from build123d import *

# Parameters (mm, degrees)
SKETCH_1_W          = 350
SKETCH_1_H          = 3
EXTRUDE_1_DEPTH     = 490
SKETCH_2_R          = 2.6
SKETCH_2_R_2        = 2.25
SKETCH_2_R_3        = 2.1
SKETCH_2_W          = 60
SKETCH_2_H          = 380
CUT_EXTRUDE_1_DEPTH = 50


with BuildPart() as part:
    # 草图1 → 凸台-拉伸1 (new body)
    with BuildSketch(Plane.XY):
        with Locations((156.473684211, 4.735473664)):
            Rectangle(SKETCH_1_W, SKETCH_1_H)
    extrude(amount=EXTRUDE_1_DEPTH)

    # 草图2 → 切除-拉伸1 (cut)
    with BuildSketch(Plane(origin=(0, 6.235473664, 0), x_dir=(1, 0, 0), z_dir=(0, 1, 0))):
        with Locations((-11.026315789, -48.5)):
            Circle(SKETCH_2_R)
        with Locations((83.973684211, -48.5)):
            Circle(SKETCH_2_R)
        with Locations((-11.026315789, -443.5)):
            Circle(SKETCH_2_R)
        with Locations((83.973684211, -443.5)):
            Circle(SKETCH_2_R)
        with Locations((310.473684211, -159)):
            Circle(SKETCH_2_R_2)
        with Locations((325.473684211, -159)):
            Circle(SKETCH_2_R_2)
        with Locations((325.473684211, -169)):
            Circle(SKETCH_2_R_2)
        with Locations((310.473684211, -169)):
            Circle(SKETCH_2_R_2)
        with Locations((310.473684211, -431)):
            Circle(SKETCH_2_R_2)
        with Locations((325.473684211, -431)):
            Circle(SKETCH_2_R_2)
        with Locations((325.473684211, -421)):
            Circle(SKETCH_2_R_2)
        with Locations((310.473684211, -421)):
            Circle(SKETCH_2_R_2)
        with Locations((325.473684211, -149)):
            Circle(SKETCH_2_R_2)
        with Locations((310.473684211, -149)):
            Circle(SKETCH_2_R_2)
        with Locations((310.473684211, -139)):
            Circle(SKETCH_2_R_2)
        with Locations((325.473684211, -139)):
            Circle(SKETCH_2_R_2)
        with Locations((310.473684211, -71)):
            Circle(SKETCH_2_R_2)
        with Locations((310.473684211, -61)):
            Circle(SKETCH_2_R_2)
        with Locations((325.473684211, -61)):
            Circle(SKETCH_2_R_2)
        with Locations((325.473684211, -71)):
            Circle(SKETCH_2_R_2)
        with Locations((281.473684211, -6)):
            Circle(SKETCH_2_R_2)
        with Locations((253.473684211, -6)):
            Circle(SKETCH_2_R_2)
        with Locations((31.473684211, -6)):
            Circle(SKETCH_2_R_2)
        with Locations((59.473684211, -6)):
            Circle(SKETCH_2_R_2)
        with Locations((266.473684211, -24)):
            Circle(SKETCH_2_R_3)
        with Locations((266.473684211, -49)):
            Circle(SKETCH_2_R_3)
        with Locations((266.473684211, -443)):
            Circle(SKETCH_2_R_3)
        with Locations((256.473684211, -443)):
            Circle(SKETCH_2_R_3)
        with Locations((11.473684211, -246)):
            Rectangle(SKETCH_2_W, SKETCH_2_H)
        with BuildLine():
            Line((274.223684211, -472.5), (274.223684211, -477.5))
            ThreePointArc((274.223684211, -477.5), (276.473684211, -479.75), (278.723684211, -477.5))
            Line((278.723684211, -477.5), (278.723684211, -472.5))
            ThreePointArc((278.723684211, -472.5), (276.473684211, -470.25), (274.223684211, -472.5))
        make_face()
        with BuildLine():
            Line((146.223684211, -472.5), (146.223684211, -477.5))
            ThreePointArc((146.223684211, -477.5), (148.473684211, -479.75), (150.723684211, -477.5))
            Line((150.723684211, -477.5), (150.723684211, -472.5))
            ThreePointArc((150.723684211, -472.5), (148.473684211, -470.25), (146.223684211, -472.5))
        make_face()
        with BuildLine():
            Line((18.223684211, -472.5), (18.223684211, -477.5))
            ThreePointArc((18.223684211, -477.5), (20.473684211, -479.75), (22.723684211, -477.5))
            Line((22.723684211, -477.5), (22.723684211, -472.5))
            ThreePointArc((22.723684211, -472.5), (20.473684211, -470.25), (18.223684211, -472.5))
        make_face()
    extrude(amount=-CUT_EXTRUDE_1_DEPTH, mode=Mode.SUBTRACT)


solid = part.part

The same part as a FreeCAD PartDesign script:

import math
import FreeCAD as App
import Part
import Sketcher

V = App.Vector
Q = App.Units.Quantity


def add_polygon(sketch, points):
    """Adds a closed chain of lines whose ends are joined by coincident constraints."""
    first, n = sketch.GeometryCount, len(points)
    for a, b in zip(points, points[1:] + points[:1]):
        sketch.addGeometry(Part.LineSegment(App.Vector(*a, 0), App.Vector(*b, 0)), False)
    for i in range(n):
        sketch.addConstraint(Sketcher.Constraint("Coincident", first + i, 2, first + (i + 1) % n, 1))

doc = App.newDocument("Part")
body = doc.addObject("PartDesign::Body", "Body")

# Sketch on XY plane
sketch1 = body.newObject("Sketcher::SketchObject", "Sketch")
sketch1.AttachmentSupport = (doc.getObject("XY_Plane"), [""])
sketch1.MapMode = "FlatFace"
add_polygon(sketch1, [(-18.5, 6.2), (-18.5, 3.2), (331.5, 3.2), (331.5, 6.2)])  # lines 0-3
sketch1.addConstraint([
    Sketcher.Constraint("Vertical", 0),
    Sketcher.Constraint("Horizontal", 1),
    Sketcher.Constraint("Vertical", 2),
    Sketcher.Constraint("Horizontal", 3),
    Sketcher.Constraint("DistanceX", 1, 1, 1, 2, Q("350 mm")),
    Sketcher.Constraint("DistanceY", 0, 2, 0, 1, Q("3 mm")),
    Sketcher.Constraint("DistanceX", 0, 2, -1, 1, Q("18.526316 mm")),
    Sketcher.Constraint("DistanceY", -1, 1, 0, 2, Q("3.235474 mm")),
])
pad1 = body.newObject("PartDesign::Pad", "Pad")
pad1.Profile = sketch1
pad1.Length = 490

# Sketch on XZ plane
sketch2 = body.newObject("Sketcher::SketchObject", "Sketch001")
sketch2.AttachmentSupport = (doc.getObject("XZ_Plane"), [""])
sketch2.MapMode = "FlatFace"
sketch2.AttachmentOffset = App.Placement(V(0, 0, -6.235474), App.Rotation())
sketch2.addGeometry(Part.Circle(V(-11, 48.5, 0), V(0, 0, 1), 2.6), False)  # 0
sketch2.addGeometry(Part.Circle(V(84, 48.5, 0), V(0, 0, 1), 2.6), False)  # 1
sketch2.addGeometry(Part.Circle(V(-11, 443.5, 0), V(0, 0, 1), 2.6), False)  # 2
sketch2.addGeometry(Part.Circle(V(84, 443.5, 0), V(0, 0, 1), 2.6), False)  # 3
sketch2.addGeometry(Part.Circle(V(310.5, 159, 0), V(0, 0, 1), 2.2), False)  # 4
sketch2.addGeometry(Part.Circle(V(325.5, 159, 0), V(0, 0, 1), 2.2), False)  # 5
sketch2.addGeometry(Part.Circle(V(325.5, 169, 0), V(0, 0, 1), 2.2), False)  # 6
sketch2.addGeometry(Part.Circle(V(310.5, 169, 0), V(0, 0, 1), 2.2), False)  # 7
sketch2.addGeometry(Part.Circle(V(310.5, 431, 0), V(0, 0, 1), 2.2), False)  # 8
sketch2.addGeometry(Part.Circle(V(325.5, 431, 0), V(0, 0, 1), 2.2), False)  # 9
sketch2.addGeometry(Part.Circle(V(325.5, 421, 0), V(0, 0, 1), 2.2), False)  # 10
sketch2.addGeometry(Part.Circle(V(310.5, 421, 0), V(0, 0, 1), 2.2), False)  # 11
sketch2.addGeometry(Part.Circle(V(325.5, 149, 0), V(0, 0, 1), 2.2), False)  # 12
sketch2.addGeometry(Part.Circle(V(310.5, 149, 0), V(0, 0, 1), 2.2), False)  # 13
sketch2.addGeometry(Part.Circle(V(310.5, 139, 0), V(0, 0, 1), 2.2), False)  # 14
sketch2.addGeometry(Part.Circle(V(325.5, 139, 0), V(0, 0, 1), 2.2), False)  # 15
sketch2.addGeometry(Part.Circle(V(310.5, 71, 0), V(0, 0, 1), 2.2), False)  # 16
sketch2.addGeometry(Part.Circle(V(310.5, 61, 0), V(0, 0, 1), 2.2), False)  # 17
sketch2.addGeometry(Part.Circle(V(325.5, 61, 0), V(0, 0, 1), 2.2), False)  # 18
sketch2.addGeometry(Part.Circle(V(325.5, 71, 0), V(0, 0, 1), 2.2), False)  # 19
sketch2.addGeometry(Part.Circle(V(281.5, 6, 0), V(0, 0, 1), 2.2), False)  # 20
sketch2.addGeometry(Part.Circle(V(253.5, 6, 0), V(0, 0, 1), 2.2), False)  # 21
sketch2.addGeometry(Part.Circle(V(31.5, 6, 0), V(0, 0, 1), 2.2), False)  # 22
sketch2.addGeometry(Part.Circle(V(59.5, 6, 0), V(0, 0, 1), 2.2), False)  # 23
sketch2.addGeometry(Part.Circle(V(266.5, 24, 0), V(0, 0, 1), 2.1), False)  # 24
sketch2.addGeometry(Part.Circle(V(266.5, 49, 0), V(0, 0, 1), 2.1), False)  # 25
sketch2.addGeometry(Part.Circle(V(266.5, 443, 0), V(0, 0, 1), 2.1), False)  # 26
sketch2.addGeometry(Part.Circle(V(256.5, 443, 0), V(0, 0, 1), 2.1), False)  # 27
add_polygon(sketch2, [(-18.5, 56), (-18.5, 436), (41.5, 436), (41.5, 56)])  # lines 28-31
sketch2.addGeometry(Part.LineSegment(V(274.2, 472.5, 0), V(274.2, 477.5, 0)), False)  # 32
sketch2.addGeometry(Part.ArcOfCircle(Part.Circle(V(276.5, 477.5, 0), V(0, 0, 1), 2.2), math.radians(0), math.radians(180)), False)  # 33
sketch2.addGeometry(Part.LineSegment(V(278.7, 477.5, 0), V(278.7, 472.5, 0)), False)  # 34
sketch2.addGeometry(Part.ArcOfCircle(Part.Circle(V(276.5, 472.5, 0), V(0, 0, 1), 2.2), math.radians(180), math.radians(360)), False)  # 35
sketch2.addGeometry(Part.LineSegment(V(146.2, 472.5, 0), V(146.2, 477.5, 0)), False)  # 36
sketch2.addGeometry(Part.ArcOfCircle(Part.Circle(V(148.5, 477.5, 0), V(0, 0, 1), 2.2), math.radians(0), math.radians(180)), False)  # 37
sketch2.addGeometry(Part.LineSegment(V(150.7, 477.5, 0), V(150.7, 472.5, 0)), False)  # 38
sketch2.addGeometry(Part.ArcOfCircle(Part.Circle(V(148.5, 472.5, 0), V(0, 0, 1), 2.2), math.radians(180), math.radians(360)), False)  # 39
sketch2.addGeometry(Part.LineSegment(V(18.2, 472.5, 0), V(18.2, 477.5, 0)), False)  # 40
sketch2.addGeometry(Part.ArcOfCircle(Part.Circle(V(20.5, 477.5, 0), V(0, 0, 1), 2.2), math.radians(0), math.radians(180)), False)  # 41
sketch2.addGeometry(Part.LineSegment(V(22.7, 477.5, 0), V(22.7, 472.5, 0)), False)  # 42
sketch2.addGeometry(Part.ArcOfCircle(Part.Circle(V(20.5, 472.5, 0), V(0, 0, 1), 2.2), math.radians(180), math.radians(360)), False)  # 43
sketch2.addConstraint([
    Sketcher.Constraint("Tangent", 32, 2, 33, 2),
    Sketcher.Constraint("Tangent", 33, 1, 34, 1),
    Sketcher.Constraint("Tangent", 34, 2, 35, 2),
    Sketcher.Constraint("Tangent", 35, 1, 32, 1),
    Sketcher.Constraint("Tangent", 36, 2, 37, 2),
    Sketcher.Constraint("Tangent", 37, 1, 38, 1),
    Sketcher.Constraint("Tangent", 38, 2, 39, 2),
    Sketcher.Constraint("Tangent", 39, 1, 36, 1),
    Sketcher.Constraint("Tangent", 40, 2, 41, 2),
    Sketcher.Constraint("Tangent", 41, 1, 42, 1),
    Sketcher.Constraint("Tangent", 42, 2, 43, 2),
    Sketcher.Constraint("Tangent", 43, 1, 40, 1),
    Sketcher.Constraint("Vertical", 28),
    Sketcher.Constraint("Horizontal", 29),
    Sketcher.Constraint("Vertical", 30),
    Sketcher.Constraint("Horizontal", 31),
    Sketcher.Constraint("Vertical", 32),
    Sketcher.Constraint("Vertical", 34),
    Sketcher.Constraint("Vertical", 36),
    Sketcher.Constraint("Vertical", 38),
    Sketcher.Constraint("Vertical", 40),
    Sketcher.Constraint("Vertical", 42),
    Sketcher.Constraint("Equal", 0, 1),
    Sketcher.Constraint("Equal", 1, 2),
    Sketcher.Constraint("Equal", 2, 3),
    Sketcher.Constraint("Equal", 4, 5),
    Sketcher.Constraint("Equal", 5, 6),
    Sketcher.Constraint("Equal", 6, 7),
    Sketcher.Constraint("Equal", 7, 8),
    Sketcher.Constraint("Equal", 8, 9),
    Sketcher.Constraint("Equal", 9, 10),
    Sketcher.Constraint("Equal", 10, 11),
    Sketcher.Constraint("Equal", 11, 12),
    Sketcher.Constraint("Equal", 12, 13),
    Sketcher.Constraint("Equal", 13, 14),
    Sketcher.Constraint("Equal", 14, 15),
    Sketcher.Constraint("Equal", 15, 16),
    Sketcher.Constraint("Equal", 16, 17),
    Sketcher.Constraint("Equal", 17, 18),
    Sketcher.Constraint("Equal", 18, 19),
    Sketcher.Constraint("Equal", 19, 20),
    Sketcher.Constraint("Equal", 20, 21),
    Sketcher.Constraint("Equal", 21, 22),
    Sketcher.Constraint("Equal", 22, 23),
    Sketcher.Constraint("Equal", 24, 25),
    Sketcher.Constraint("Equal", 25, 26),
    Sketcher.Constraint("Equal", 26, 27),
    Sketcher.Constraint("Equal", 23, 33),
    Sketcher.Constraint("Equal", 35, 37),
    Sketcher.Constraint("Equal", 39, 41),
    Sketcher.Constraint("Horizontal", 0, 3, 1, 3),
    Sketcher.Constraint("Horizontal", 2, 3, 3, 3),
    Sketcher.Constraint("Horizontal", 4, 3, 5, 3),
    Sketcher.Constraint("Horizontal", 6, 3, 7, 3),
    Sketcher.Constraint("Horizontal", 8, 3, 9, 3),
    Sketcher.Constraint("Horizontal", 10, 3, 11, 3),
    Sketcher.Constraint("Horizontal", 12, 3, 13, 3),
    Sketcher.Constraint("Horizontal", 14, 3, 15, 3),
    Sketcher.Constraint("Horizontal", 17, 3, 18, 3),
    Sketcher.Constraint("Horizontal", 16, 3, 19, 3),
    Sketcher.Constraint("Horizontal", 20, 3, 21, 3),
    Sketcher.Constraint("Horizontal", 21, 3, 22, 3),
    Sketcher.Constraint("Horizontal", 22, 3, 23, 3),
    Sketcher.Constraint("Horizontal", 26, 3, 27, 3),
    Sketcher.Constraint("Horizontal", 33, 3, 37, 3),
    Sketcher.Constraint("Horizontal", 35, 3, 39, 3),
    Sketcher.Constraint("Horizontal", 37, 3, 41, 3),
    Sketcher.Constraint("Horizontal", 39, 3, 43, 3),
    Sketcher.Constraint("Vertical", 0, 3, 2, 3),
    Sketcher.Constraint("Vertical", 1, 3, 3, 3),
    Sketcher.Constraint("Vertical", 5, 3, 6, 3),
    Sketcher.Constraint("Vertical", 4, 3, 7, 3),
    Sketcher.Constraint("Vertical", 7, 3, 8, 3),
    Sketcher.Constraint("Vertical", 6, 3, 9, 3),
    Sketcher.Constraint("Vertical", 9, 3, 10, 3),
    Sketcher.Constraint("Vertical", 8, 3, 11, 3),
    Sketcher.Constraint("Vertical", 10, 3, 12, 3),
    Sketcher.Constraint("Vertical", 11, 3, 13, 3),
    Sketcher.Constraint("Vertical", 13, 3, 14, 3),
    Sketcher.Constraint("Vertical", 12, 3, 15, 3),
    Sketcher.Constraint("Vertical", 14, 3, 16, 3),
    Sketcher.Constraint("Vertical", 16, 3, 17, 3),
    Sketcher.Constraint("Vertical", 15, 3, 18, 3),
    Sketcher.Constraint("Vertical", 18, 3, 19, 3),
    Sketcher.Constraint("Vertical", 24, 3, 25, 3),
    Sketcher.Constraint("Vertical", 25, 3, 26, 3),
    Sketcher.Constraint("Diameter", 0, Q("5.2 mm")),
    Sketcher.Constraint("Diameter", 4, Q("4.5 mm")),
    Sketcher.Constraint("Diameter", 24, Q("4.2 mm")),
    Sketcher.Constraint("DistanceX", 29, 1, 29, 2, Q("60 mm")),
    Sketcher.Constraint("DistanceY", 28, 1, 28, 2, Q("380 mm")),
    Sketcher.Constraint("DistanceY", 32, 1, 32, 2, Q("5 mm")),
    Sketcher.Constraint("DistanceY", -1, 1, 4, 3, Q("159 mm")),
    Sketcher.Constraint("DistanceY", -1, 1, 6, 3, Q("169 mm")),
    Sketcher.Constraint("DistanceY", -1, 1, 8, 3, Q("431 mm")),
    Sketcher.Constraint("DistanceY", -1, 1, 10, 3, Q("421 mm")),
    Sketcher.Constraint("DistanceY", -1, 1, 12, 3, Q("149 mm")),
    Sketcher.Constraint("DistanceY", -1, 1, 14, 3, Q("139 mm")),
    Sketcher.Constraint("DistanceY", -1, 1, 16, 3, Q("71 mm")),
    Sketcher.Constraint("DistanceY", -1, 1, 17, 3, Q("61 mm")),
    Sketcher.Constraint("DistanceY", -1, 1, 20, 3, Q("6 mm")),
    Sketcher.Constraint("DistanceY", -1, 1, 24, 3, Q("24 mm")),
    Sketcher.Constraint("DistanceY", -1, 1, 25, 3, Q("49 mm")),
    Sketcher.Constraint("DistanceY", -1, 1, 26, 3, Q("443 mm")),
    Sketcher.Constraint("DistanceY", -1, 1, 28, 2, Q("436 mm")),
    Sketcher.Constraint("DistanceX", 0, 3, 1, 3, Q("95 mm")),
    Sketcher.Constraint("DistanceY", 0, 3, 2, 3, Q("395 mm")),
    Sketcher.Constraint("DistanceX", 4, 3, 5, 3, Q("15 mm")),
    Sketcher.Constraint("DistanceX", 20, 3, 17, 3, Q("29 mm")),
    Sketcher.Constraint("DistanceX", 21, 3, 20, 3, Q("28 mm")),
    Sketcher.Constraint("DistanceX", 22, 3, 21, 3, Q("222 mm")),
    Sketcher.Constraint("DistanceX", 22, 3, 23, 3, Q("28 mm")),
    Sketcher.Constraint("DistanceX", 21, 3, 24, 3, Q("13 mm")),
    Sketcher.Constraint("DistanceX", 27, 3, 26, 3, Q("10 mm")),
    Sketcher.Constraint("DistanceX", 26, 3, 33, 3, Q("10 mm")),
    Sketcher.Constraint("DistanceY", 3, 3, 37, 3, Q("34 mm")),
    Sketcher.Constraint("DistanceX", 37, 3, 27, 3, Q("108 mm")),
    Sketcher.Constraint("DistanceX", 41, 3, 37, 3, Q("128 mm")),
    Sketcher.Constraint("DistanceX", 28, 2, 43, 3, Q("39 mm")),
    Sketcher.Constraint("DistanceY", -1, 1, 0, 3, Q("48.5 mm")),
    Sketcher.Constraint("DistanceX", 1, 3, 4, 3, Q("226.5 mm")),
    Sketcher.Constraint("DistanceX", 0, 3, -1, 1, Q("11.026316 mm")),
])
pocket1 = body.newObject("PartDesign::Pocket", "Pocket")
pocket1.Profile = sketch2
pocket1.Length = 50
pocket1.Reversed = True

doc.recompute()
